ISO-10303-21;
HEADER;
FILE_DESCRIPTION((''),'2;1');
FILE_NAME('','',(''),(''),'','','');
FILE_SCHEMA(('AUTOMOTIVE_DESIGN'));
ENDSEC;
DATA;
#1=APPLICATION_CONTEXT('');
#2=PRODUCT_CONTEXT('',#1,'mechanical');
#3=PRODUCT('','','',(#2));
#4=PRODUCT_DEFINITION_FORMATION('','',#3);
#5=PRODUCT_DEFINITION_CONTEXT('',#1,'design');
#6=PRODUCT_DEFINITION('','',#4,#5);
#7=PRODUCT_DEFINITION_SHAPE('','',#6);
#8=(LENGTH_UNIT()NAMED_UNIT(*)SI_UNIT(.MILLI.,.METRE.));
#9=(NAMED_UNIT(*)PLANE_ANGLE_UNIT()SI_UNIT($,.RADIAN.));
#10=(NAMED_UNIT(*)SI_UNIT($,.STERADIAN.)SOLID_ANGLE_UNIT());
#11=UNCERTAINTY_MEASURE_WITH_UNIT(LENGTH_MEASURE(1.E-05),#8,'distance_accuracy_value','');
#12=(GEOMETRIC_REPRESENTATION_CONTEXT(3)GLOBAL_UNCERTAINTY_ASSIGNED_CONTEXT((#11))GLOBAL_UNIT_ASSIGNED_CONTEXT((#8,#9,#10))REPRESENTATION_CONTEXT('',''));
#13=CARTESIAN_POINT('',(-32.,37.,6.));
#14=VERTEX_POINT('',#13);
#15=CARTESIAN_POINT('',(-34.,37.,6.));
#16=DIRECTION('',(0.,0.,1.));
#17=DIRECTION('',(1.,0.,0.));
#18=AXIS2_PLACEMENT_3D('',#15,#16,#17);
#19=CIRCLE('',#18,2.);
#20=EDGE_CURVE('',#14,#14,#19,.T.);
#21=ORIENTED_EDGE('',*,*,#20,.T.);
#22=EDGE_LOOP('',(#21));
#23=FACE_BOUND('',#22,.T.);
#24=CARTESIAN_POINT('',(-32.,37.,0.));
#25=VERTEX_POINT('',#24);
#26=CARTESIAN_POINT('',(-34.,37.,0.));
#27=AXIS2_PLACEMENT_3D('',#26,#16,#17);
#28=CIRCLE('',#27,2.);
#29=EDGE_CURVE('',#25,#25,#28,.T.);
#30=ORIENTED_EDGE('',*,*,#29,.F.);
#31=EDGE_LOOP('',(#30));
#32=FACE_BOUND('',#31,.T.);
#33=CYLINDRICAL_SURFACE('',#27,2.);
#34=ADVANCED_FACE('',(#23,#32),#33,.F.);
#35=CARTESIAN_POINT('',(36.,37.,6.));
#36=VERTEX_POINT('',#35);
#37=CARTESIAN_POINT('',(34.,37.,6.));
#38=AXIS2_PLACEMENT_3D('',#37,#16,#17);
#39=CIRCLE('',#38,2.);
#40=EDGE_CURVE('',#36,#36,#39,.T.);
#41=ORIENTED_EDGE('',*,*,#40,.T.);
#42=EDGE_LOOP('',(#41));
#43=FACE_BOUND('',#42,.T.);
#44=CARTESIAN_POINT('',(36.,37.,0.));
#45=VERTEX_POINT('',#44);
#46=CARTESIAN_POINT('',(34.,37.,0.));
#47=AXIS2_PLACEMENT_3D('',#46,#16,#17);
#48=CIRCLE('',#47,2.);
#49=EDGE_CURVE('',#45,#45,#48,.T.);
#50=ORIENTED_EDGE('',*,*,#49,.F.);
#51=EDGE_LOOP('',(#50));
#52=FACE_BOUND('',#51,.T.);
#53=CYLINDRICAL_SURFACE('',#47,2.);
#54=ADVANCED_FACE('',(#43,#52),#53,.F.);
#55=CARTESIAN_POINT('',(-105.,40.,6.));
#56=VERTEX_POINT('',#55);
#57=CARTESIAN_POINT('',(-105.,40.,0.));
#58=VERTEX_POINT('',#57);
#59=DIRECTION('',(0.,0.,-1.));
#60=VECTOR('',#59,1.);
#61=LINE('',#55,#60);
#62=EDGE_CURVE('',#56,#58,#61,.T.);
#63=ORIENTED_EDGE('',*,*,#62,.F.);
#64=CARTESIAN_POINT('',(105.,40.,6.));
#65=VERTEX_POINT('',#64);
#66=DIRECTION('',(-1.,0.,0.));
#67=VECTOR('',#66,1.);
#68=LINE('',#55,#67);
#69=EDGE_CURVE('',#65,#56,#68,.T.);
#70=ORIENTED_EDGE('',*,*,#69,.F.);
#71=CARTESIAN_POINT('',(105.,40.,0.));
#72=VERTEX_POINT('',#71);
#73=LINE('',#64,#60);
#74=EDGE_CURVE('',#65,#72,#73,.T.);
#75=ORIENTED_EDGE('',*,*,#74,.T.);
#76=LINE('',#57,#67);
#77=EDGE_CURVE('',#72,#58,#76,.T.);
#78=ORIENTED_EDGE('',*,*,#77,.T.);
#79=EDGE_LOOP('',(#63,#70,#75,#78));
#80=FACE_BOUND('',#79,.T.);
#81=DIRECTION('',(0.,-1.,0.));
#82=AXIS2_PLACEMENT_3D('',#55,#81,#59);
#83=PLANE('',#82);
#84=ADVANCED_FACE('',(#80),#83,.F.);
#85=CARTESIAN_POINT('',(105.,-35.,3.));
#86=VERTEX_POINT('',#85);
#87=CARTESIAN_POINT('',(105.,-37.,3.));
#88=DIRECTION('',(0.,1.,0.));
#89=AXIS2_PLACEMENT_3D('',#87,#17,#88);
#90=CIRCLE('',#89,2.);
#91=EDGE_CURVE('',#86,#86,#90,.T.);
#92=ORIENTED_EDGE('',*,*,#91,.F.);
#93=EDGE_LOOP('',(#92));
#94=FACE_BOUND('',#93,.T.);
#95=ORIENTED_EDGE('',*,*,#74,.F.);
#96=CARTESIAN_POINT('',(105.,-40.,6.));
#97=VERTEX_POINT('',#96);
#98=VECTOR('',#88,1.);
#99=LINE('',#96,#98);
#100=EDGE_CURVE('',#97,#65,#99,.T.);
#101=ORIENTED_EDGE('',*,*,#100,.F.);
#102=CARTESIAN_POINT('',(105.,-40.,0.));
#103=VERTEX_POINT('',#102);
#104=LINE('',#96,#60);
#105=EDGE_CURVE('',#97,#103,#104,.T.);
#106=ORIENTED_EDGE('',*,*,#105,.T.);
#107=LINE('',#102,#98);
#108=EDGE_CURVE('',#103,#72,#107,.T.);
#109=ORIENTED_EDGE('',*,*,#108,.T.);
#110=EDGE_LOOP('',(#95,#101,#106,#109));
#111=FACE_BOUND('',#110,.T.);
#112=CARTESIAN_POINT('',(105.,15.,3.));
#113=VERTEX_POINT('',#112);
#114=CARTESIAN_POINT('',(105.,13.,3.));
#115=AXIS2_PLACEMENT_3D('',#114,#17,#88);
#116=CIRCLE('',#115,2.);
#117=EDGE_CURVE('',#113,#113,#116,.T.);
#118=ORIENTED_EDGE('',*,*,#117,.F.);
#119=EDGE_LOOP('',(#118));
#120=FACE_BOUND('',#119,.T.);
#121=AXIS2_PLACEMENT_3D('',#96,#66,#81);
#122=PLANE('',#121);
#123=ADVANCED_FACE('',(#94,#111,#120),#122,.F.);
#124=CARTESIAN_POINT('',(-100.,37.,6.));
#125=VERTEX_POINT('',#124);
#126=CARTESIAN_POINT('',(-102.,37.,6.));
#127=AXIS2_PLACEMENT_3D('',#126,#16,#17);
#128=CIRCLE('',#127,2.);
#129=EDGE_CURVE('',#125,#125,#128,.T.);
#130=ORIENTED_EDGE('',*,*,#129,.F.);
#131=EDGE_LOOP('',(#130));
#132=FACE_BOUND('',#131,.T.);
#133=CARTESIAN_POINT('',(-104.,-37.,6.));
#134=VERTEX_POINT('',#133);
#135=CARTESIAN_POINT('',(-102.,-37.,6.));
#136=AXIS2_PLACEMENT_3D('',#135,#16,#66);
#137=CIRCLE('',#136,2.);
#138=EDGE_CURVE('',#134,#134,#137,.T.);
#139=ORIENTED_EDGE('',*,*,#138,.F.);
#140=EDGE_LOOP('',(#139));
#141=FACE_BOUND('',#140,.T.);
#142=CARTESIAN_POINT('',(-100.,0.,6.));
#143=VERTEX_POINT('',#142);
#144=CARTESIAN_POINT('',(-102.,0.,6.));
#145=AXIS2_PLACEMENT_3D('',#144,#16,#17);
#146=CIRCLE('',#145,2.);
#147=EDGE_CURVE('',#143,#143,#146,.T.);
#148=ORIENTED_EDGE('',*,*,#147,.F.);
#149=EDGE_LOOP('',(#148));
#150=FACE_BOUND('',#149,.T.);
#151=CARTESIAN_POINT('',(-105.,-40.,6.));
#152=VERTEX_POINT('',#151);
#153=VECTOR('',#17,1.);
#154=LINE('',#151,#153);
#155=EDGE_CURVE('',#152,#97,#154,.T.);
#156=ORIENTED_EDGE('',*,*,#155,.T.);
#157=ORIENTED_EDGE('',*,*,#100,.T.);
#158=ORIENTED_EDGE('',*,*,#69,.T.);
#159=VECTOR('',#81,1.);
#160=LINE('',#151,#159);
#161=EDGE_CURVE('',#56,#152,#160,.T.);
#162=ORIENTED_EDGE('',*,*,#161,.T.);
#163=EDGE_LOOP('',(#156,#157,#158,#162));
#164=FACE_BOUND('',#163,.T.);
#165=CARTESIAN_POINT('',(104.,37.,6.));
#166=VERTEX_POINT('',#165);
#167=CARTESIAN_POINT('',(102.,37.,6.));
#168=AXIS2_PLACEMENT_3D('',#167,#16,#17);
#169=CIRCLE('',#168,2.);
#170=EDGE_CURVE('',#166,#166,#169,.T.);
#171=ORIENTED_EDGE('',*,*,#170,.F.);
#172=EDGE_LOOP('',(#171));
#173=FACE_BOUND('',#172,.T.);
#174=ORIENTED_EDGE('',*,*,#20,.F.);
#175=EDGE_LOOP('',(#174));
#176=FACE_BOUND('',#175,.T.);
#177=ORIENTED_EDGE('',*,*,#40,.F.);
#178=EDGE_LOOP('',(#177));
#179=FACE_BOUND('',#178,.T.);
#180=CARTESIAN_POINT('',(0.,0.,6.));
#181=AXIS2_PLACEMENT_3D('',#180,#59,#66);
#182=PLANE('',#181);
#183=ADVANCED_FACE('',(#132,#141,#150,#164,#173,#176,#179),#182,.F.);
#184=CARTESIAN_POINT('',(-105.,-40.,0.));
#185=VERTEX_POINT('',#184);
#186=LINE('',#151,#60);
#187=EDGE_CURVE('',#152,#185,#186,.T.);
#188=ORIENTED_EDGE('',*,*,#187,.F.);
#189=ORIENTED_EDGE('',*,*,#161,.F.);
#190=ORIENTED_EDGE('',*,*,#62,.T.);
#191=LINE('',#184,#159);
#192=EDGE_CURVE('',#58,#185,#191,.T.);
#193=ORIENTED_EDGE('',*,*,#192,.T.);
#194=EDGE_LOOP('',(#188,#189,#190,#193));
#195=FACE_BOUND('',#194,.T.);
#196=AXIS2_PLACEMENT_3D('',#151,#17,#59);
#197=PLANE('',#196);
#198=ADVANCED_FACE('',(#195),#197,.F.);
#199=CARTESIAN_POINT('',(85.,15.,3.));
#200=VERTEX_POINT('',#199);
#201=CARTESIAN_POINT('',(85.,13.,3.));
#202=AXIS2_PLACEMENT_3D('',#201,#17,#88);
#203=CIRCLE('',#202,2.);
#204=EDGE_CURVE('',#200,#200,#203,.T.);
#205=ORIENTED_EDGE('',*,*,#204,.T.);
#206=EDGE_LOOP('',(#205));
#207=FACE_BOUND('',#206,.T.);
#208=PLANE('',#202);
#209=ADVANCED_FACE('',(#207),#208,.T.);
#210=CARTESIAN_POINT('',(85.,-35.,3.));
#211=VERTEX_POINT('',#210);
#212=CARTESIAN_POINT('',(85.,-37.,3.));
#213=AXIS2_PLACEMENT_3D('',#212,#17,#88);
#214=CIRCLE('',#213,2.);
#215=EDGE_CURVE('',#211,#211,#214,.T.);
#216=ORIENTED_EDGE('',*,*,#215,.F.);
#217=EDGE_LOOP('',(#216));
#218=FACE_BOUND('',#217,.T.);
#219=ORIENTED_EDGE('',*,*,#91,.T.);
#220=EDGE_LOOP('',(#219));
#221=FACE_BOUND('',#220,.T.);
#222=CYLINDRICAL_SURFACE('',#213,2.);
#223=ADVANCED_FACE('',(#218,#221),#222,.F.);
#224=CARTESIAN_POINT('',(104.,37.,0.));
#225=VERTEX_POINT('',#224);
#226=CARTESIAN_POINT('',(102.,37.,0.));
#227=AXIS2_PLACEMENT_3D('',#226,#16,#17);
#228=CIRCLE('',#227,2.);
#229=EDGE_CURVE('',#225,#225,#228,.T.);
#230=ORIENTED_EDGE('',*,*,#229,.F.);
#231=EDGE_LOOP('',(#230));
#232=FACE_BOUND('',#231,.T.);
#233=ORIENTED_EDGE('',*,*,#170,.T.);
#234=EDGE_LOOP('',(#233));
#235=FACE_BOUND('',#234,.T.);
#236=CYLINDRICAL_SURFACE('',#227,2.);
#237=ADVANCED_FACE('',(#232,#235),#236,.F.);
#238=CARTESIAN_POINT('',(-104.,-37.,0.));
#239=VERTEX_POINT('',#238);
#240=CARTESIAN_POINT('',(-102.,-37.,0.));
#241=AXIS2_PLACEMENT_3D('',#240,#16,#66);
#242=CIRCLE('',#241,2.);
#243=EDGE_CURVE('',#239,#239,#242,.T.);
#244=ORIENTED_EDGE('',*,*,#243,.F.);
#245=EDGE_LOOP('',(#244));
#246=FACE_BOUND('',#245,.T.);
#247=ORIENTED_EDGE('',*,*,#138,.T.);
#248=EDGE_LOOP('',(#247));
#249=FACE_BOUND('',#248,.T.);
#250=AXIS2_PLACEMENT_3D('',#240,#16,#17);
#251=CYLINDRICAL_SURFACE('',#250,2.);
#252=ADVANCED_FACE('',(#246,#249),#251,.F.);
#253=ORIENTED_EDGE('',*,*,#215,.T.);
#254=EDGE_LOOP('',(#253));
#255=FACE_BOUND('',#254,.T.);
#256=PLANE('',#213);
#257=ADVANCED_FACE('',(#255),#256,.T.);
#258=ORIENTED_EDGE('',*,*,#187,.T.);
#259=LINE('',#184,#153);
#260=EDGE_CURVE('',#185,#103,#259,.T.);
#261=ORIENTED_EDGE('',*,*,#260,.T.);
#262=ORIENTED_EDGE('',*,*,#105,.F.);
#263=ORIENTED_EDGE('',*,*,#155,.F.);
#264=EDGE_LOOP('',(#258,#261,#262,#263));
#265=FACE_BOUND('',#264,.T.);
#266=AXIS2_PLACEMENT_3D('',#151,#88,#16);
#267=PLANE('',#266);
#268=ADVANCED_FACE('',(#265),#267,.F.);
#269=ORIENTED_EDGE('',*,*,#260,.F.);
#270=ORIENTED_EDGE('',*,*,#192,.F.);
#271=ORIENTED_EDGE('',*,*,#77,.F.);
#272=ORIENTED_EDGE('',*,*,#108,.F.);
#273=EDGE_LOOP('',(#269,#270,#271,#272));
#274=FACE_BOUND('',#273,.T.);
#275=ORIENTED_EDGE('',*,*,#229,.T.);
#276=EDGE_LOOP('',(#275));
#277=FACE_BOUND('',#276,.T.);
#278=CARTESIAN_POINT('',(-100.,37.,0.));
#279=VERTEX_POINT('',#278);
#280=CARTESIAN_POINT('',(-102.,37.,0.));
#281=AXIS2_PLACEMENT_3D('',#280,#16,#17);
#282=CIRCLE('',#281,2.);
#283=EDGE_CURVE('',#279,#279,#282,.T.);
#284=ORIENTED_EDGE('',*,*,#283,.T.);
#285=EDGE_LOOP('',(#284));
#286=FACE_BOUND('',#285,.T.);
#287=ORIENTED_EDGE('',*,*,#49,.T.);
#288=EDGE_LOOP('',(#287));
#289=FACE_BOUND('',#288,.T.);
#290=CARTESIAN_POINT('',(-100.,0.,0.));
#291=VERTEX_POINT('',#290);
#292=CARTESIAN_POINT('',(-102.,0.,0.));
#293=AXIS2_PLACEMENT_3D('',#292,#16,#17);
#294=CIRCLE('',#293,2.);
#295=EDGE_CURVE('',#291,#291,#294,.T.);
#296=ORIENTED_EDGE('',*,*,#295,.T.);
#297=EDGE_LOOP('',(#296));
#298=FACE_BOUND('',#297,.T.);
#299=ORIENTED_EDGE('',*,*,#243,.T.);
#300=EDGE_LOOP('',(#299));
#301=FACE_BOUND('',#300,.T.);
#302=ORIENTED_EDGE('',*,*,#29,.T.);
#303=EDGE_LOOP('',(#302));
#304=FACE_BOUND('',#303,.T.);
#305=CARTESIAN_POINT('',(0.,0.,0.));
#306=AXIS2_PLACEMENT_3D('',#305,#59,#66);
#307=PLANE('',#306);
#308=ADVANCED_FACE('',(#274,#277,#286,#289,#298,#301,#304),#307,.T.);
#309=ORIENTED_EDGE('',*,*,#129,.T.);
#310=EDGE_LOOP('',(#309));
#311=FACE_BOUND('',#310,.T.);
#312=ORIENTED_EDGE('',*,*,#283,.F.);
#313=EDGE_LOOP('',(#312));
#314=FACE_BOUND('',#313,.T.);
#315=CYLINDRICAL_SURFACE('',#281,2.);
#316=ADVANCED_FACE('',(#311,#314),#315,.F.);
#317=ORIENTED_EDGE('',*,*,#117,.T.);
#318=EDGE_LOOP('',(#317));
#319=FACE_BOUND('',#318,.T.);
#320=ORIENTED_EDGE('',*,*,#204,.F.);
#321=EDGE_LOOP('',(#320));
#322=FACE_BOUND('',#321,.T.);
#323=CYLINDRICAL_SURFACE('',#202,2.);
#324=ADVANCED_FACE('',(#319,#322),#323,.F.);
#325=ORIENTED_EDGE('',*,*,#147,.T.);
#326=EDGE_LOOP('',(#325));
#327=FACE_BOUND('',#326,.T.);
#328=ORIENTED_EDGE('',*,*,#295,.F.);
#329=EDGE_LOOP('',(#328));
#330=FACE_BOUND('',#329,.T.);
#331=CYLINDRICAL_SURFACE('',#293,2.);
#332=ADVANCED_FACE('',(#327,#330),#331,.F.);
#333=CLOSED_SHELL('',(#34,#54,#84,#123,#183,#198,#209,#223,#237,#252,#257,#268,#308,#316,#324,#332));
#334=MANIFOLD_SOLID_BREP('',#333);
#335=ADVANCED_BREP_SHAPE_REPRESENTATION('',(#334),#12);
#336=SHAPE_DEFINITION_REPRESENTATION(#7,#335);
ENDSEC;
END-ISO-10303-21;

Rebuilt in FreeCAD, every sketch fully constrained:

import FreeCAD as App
import Part
import Sketcher

V = App.Vector

doc = App.newDocument("Part")
body = doc.addObject("PartDesign::Body", "Body")

sketch1 = body.newObject("Sketcher::SketchObject", "Sketch")
sketch1.AttachmentSupport = (doc.getObject("XY_Plane"), [""])
sketch1.MapMode = "FlatFace"
sketch1.addGeometry([
    Part.LineSegment(V(-105, 40, 0), V(-105, -40, 0)),
    Part.LineSegment(V(-105, -40, 0), V(105, -40, 0)),
    Part.LineSegment(V(105, -40, 0), V(105, 40, 0)),
    Part.LineSegment(V(105, 40, 0), V(-105, 40, 0)),
], False)
sketch1.addConstraint([
    Sketcher.Constraint("Coincident", 0, 2, 1, 1),
    Sketcher.Constraint("Coincident", 1, 2, 2, 1),
    Sketcher.Constraint("Coincident", 2, 2, 3, 1),
    Sketcher.Constraint("Coincident", 3, 2, 0, 1),
    Sketcher.Constraint("Vertical", 0),
    Sketcher.Constraint("Horizontal", 1),
    Sketcher.Constraint("Vertical", 2),
    Sketcher.Constraint("Horizontal", 3),
    Sketcher.Constraint("Symmetric", 0, 2, 2, 2, -1, 1),
    Sketcher.Constraint("DistanceX", 1, 1, 1, 2, 210.0),
    Sketcher.Constraint("DistanceY", 0, 2, 0, 1, 80.0),
])
pad1 = body.newObject("PartDesign::Pad", "Pad")
pad1.Profile = sketch1
pad1.Length = 6

sketch2 = body.newObject("Sketcher::SketchObject", "Sketch001")
sketch2.AttachmentSupport = (doc.getObject("XY_Plane"), [""])
sketch2.MapMode = "FlatFace"
sketch2.AttachmentOffset = App.Placement(V(0, 0, 6), App.Rotation())
sketch2.addGeometry([
    Part.Circle(V(-102, 0, 0), V(0, 0, 1), 2),
    Part.Circle(V(-102, 37, 0), V(0, 0, 1), 2),
    Part.Circle(V(-102, -37, 0), V(0, 0, 1), 2),
    Part.Circle(V(-34, 37, 0), V(0, 0, 1), 2),
    Part.Circle(V(34, 37, 0), V(0, 0, 1), 2),
    Part.Circle(V(102, 37, 0), V(0, 0, 1), 2),
], False)
sketch2.addConstraint([
    Sketcher.Constraint("Equal", 0, 1),
    Sketcher.Constraint("Equal", 1, 2),
    Sketcher.Constraint("Equal", 2, 3),
    Sketcher.Constraint("Equal", 3, 4),
    Sketcher.Constraint("Equal", 4, 5),
    Sketcher.Constraint("Symmetric", 2, 3, 5, 3, -1, 1),
    Sketcher.Constraint("Symmetric", 3, 3, 4, 3, -2),
    Sketcher.Constraint("Symmetric", 1, 3, 5, 3, -2),
    Sketcher.Constraint("PointOnObject", 0, 3, -1),
    Sketcher.Constraint("Horizontal", 1, 3, 3, 3),
    Sketcher.Constraint("Vertical", 0, 3, 1, 3),
    Sketcher.Constraint("Diameter", 0, 4.0),
    Sketcher.Constraint("DistanceX", 0, 3, -1, 1, 102.0),
    Sketcher.Constraint("DistanceY", -1, 1, 1, 3, 37.0),
    Sketcher.Constraint("DistanceX", 3, 3, -1, 1, 34.0),
])
pocket1 = body.newObject("PartDesign::Pocket", "Pocket")
pocket1.Profile = sketch2
pocket1.Length = 6

sketch3 = body.newObject("Sketcher::SketchObject", "Sketch002")
sketch3.AttachmentSupport = (doc.getObject("YZ_Plane"), [""])
sketch3.MapMode = "FlatFace"
sketch3.AttachmentOffset = App.Placement(V(0, 0, 105), App.Rotation())
sketch3.addGeometry([
    Part.Circle(V(-37, 3, 0), V(0, 0, 1), 2),
    Part.Circle(V(13, 3, 0), V(0, 0, 1), 2),
], False)
sketch3.addConstraint([
    Sketcher.Constraint("Equal", 0, 1),
    Sketcher.Constraint("Horizontal", 0, 3, 1, 3),
    Sketcher.Constraint("Diameter", 0, 4.0),
    Sketcher.Constraint("DistanceX", 0, 3, -1, 1, 37.0),
    Sketcher.Constraint("DistanceY", -1, 1, 0, 3, 3.0),
    Sketcher.Constraint("DistanceX", -1, 1, 1, 3, 13.0),
])
pocket2 = body.newObject("PartDesign::Pocket", "Pocket001")
pocket2.Profile = sketch3
pocket2.Length = 20

doc.recompute()
